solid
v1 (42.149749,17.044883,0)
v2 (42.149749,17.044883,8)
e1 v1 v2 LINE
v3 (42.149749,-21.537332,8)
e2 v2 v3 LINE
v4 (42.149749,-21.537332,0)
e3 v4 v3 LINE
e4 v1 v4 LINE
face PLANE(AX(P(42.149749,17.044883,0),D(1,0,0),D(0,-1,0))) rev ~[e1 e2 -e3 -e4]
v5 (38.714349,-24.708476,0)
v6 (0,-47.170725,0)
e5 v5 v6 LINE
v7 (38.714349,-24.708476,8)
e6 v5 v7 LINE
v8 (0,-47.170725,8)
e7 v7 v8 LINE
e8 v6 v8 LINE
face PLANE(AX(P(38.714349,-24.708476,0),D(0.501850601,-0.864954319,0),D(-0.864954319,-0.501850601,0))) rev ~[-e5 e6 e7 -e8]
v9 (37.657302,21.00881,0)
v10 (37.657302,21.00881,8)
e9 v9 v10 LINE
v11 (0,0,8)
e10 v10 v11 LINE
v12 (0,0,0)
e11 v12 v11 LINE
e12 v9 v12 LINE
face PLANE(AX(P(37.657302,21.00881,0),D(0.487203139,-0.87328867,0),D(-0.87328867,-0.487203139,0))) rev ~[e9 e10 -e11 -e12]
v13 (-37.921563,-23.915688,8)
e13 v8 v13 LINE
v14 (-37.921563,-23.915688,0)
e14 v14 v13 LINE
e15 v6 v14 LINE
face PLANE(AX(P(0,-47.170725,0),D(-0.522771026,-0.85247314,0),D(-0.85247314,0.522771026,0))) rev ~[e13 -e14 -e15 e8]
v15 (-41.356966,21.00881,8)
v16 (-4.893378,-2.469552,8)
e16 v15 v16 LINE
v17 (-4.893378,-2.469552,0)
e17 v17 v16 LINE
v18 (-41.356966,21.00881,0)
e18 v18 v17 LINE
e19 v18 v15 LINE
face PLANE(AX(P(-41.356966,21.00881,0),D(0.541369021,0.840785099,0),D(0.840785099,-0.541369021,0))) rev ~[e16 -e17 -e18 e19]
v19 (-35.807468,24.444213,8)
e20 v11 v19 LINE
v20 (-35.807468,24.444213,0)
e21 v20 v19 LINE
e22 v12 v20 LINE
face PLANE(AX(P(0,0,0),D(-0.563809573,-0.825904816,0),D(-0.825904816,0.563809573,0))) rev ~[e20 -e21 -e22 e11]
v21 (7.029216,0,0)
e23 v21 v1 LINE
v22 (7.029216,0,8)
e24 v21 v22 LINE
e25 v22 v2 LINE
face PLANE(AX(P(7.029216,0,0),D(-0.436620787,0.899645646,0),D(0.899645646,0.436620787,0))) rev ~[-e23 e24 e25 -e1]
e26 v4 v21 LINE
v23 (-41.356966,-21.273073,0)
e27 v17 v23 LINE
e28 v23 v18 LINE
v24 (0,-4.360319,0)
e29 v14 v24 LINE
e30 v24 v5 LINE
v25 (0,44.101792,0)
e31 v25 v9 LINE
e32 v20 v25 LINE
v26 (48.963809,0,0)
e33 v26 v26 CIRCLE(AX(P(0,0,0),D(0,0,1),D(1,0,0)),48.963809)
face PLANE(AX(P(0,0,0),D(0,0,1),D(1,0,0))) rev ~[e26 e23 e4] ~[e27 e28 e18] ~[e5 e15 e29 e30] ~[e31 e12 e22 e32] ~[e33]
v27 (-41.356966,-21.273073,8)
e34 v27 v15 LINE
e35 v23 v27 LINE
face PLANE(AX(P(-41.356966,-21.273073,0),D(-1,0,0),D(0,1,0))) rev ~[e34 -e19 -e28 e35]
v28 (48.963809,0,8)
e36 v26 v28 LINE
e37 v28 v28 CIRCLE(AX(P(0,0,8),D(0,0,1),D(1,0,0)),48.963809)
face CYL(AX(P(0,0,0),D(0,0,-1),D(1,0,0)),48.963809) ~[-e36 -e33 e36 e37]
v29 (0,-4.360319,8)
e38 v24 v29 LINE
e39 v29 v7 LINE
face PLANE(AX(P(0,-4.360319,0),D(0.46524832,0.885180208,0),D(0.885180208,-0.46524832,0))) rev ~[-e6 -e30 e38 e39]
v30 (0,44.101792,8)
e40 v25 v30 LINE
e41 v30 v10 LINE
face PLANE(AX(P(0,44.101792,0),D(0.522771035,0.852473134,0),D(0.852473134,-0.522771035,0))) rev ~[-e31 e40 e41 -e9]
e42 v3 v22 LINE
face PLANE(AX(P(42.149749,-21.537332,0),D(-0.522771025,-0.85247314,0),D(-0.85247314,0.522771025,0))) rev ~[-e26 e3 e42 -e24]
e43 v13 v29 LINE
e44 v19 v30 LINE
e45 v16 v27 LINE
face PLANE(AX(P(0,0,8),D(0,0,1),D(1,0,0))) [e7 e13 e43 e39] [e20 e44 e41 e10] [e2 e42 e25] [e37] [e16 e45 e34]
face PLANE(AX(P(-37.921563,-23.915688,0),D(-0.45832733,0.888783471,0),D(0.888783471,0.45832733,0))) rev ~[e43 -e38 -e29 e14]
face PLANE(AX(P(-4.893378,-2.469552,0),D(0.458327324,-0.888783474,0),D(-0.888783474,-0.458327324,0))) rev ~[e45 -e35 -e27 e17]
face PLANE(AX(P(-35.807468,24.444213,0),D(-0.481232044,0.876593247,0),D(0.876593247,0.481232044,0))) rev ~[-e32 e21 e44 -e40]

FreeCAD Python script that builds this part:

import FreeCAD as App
import Part
import Sketcher
Q = App.Units.Quantity

doc = App.newDocument("Part")
body = doc.addObject("PartDesign::Body", "Body")

# Sketch on XY plane
sketch1 = body.newObject("Sketcher::SketchObject", "Sketch")
sketch1.AttachmentSupport = (doc.getObject("XY_Plane"), [""])
sketch1.MapMode = "FlatFace"
sketch1.addGeometry(Part.Circle(App.Vector(0, 0, 0), App.Vector(0, 0, 1), 48.963809), False)
sketch1.addGeometry(Part.LineSegment(App.Vector(38.714349, -24.708476, 0), App.Vector(0, -47.170725, 0)), False)
sketch1.addGeometry(Part.LineSegment(App.Vector(0, -47.170725, 0), App.Vector(-37.921563, -23.915688, 0)), False)
sketch1.addGeometry(Part.LineSegment(App.Vector(-37.921563, -23.915688, 0), App.Vector(0, -4.360319, 0)), False)
sketch1.addGeometry(Part.LineSegment(App.Vector(0, -4.360319, 0), App.Vector(38.714349, -24.708476, 0)), False)
sketch1.addGeometry(Part.LineSegment(App.Vector(42.149749, -21.537332, 0), App.Vector(7.029216, 0, 0)), False)
sketch1.addGeometry(Part.LineSegment(App.Vector(7.029216, 0, 0), App.Vector(42.149749, 17.044883, 0)), False)
sketch1.addGeometry(Part.LineSegment(App.Vector(42.149749, 17.044883, 0), App.Vector(42.149749, -21.537332, 0)), False)
sketch1.addGeometry(Part.LineSegment(App.Vector(-4.893378, -2.469552, 0), App.Vector(-41.356966, -21.273073, 0)), False)
sketch1.addGeometry(Part.LineSegment(App.Vector(-41.356966, -21.273073, 0), App.Vector(-41.356966, 21.00881, 0)), False)
sketch1.addGeometry(Part.LineSegment(App.Vector(-41.356966, 21.00881, 0), App.Vector(-4.893378, -2.469552, 0)), False)
sketch1.addGeometry(Part.LineSegment(App.Vector(37.657302, 21.00881, 0), App.Vector(0, 0, 0)), False)
sketch1.addGeometry(Part.LineSegment(App.Vector(0, 0, 0), App.Vector(-35.807468, 24.444213, 0)), False)
sketch1.addGeometry(Part.LineSegment(App.Vector(-35.807468, 24.444213, 0), App.Vector(0, 44.101792, 0)), False)
sketch1.addGeometry(Part.LineSegment(App.Vector(0, 44.101792, 0), App.Vector(37.657302, 21.00881, 0)), False)
sketch1.addConstraint(Sketcher.Constraint("Coincident", 1, 2, 2, 1))
sketch1.addConstraint(Sketcher.Constraint("Coincident", 2, 2, 3, 1))
sketch1.addConstraint(Sketcher.Constraint("Coincident", 3, 2, 4, 1))
sketch1.addConstraint(Sketcher.Constraint("Coincident", 4, 2, 1, 1))
sketch1.addConstraint(Sketcher.Constraint("Coincident", 5, 2, 6, 1))
sketch1.addConstraint(Sketcher.Constraint("Coincident", 6, 2, 7, 1))
sketch1.addConstraint(Sketcher.Constraint("Coincident", 7, 2, 5, 1))
sketch1.addConstraint(Sketcher.Constraint("Coincident", 8, 2, 9, 1))
sketch1.addConstraint(Sketcher.Constraint("Coincident", 9, 2, 10, 1))
sketch1.addConstraint(Sketcher.Constraint("Coincident", 10, 2, 8, 1))
sketch1.addConstraint(Sketcher.Constraint("Coincident", 11, 2, 12, 1))
sketch1.addConstraint(Sketcher.Constraint("Coincident", 12, 2, 13, 1))
sketch1.addConstraint(Sketcher.Constraint("Coincident", 13, 2, 14, 1))
sketch1.addConstraint(Sketcher.Constraint("Coincident", 14, 2, 11, 1))
sketch1.addConstraint(Sketcher.Constraint("Vertical", 7))
sketch1.addConstraint(Sketcher.Constraint("Vertical", 9))
sketch1.addConstraint(Sketcher.Constraint("Coincident", 0, 3, -1, 1))
sketch1.addConstraint(Sketcher.Constraint("Coincident", 11, 2, -1, 1))
sketch1.addConstraint(Sketcher.Constraint("PointOnObject", 1, 2, -2))
sketch1.addConstraint(Sketcher.Constraint("PointOnObject", 3, 2, -2))
sketch1.addConstraint(Sketcher.Constraint("PointOnObject", 5, 2, -1))
sketch1.addConstraint(Sketcher.Constraint("PointOnObject", 13, 2, -2))
sketch1.addConstraint(Sketcher.Constraint("Parallel", 2, 5))
sketch1.addConstraint(Sketcher.Constraint("Parallel", 3, 8))
sketch1.addConstraint(Sketcher.Constraint("Parallel", 5, 14))
sketch1.addConstraint(Sketcher.Constraint("Horizontal", 9, 2, 14, 2))
sketch1.addConstraint(Sketcher.Constraint("Diameter", 0, Q("97.927618 mm")))
sketch1.addConstraint(Sketcher.Constraint("Distance", 8, Q("41.026402 mm")))
sketch1.addConstraint(Sketcher.Constraint("Distance", 10, Q("43.368499 mm")))
sketch1.addConstraint(Sketcher.Constraint("DistanceX", 4, 2, 6, 2, Q("3.4354 mm")))
sketch1.addConstraint(Sketcher.Constraint("DistanceY", 3, 2, 6, 2, Q("21.405202 mm")))
sketch1.addConstraint(Sketcher.Constraint("Distance", 3, Q("42.666818 mm")))
sketch1.addConstraint(Sketcher.Constraint("Distance", 4, Q("43.736121 mm")))
sketch1.addConstraint(Sketcher.Constraint("Distance", 12, Q("43.355442 mm")))
sketch1.addConstraint(Sketcher.Constraint("Distance", 13, Q("40.848442 mm")))
sketch1.addConstraint(Sketcher.Constraint("Distance", 14, Q("44.17418 mm")))
sketch1.addConstraint(Sketcher.Constraint("DistanceY", 7, 2, 7, 1, Q("38.582215 mm")))
sketch1.addConstraint(Sketcher.Constraint("DistanceY", 9, 1, 9, 2, Q("42.281883 mm")))
sketch1.addConstraint(Sketcher.Constraint("DistanceY", 3, 2, -1, 1, Q("4.360319 mm")))
sketch1.addConstraint(Sketcher.Constraint("DistanceX", -1, 1, 4, 2, Q("38.714349 mm")))
sketch1.addConstraint(Sketcher.Constraint("DistanceY", -1, 1, 9, 2, Q("21.00881 mm")))
sketch1.addConstraint(Sketcher.Constraint("DistanceX", 10, 2, -1, 1, Q("4.893378 mm")))
sketch1.addConstraint(Sketcher.Constraint("DistanceY", 1, 2, 4, 2, Q("22.462249 mm")))
pad1 = body.newObject("PartDesign::Pad", "Pad")
pad1.Profile = sketch1
pad1.Length = 8

doc.recompute()
